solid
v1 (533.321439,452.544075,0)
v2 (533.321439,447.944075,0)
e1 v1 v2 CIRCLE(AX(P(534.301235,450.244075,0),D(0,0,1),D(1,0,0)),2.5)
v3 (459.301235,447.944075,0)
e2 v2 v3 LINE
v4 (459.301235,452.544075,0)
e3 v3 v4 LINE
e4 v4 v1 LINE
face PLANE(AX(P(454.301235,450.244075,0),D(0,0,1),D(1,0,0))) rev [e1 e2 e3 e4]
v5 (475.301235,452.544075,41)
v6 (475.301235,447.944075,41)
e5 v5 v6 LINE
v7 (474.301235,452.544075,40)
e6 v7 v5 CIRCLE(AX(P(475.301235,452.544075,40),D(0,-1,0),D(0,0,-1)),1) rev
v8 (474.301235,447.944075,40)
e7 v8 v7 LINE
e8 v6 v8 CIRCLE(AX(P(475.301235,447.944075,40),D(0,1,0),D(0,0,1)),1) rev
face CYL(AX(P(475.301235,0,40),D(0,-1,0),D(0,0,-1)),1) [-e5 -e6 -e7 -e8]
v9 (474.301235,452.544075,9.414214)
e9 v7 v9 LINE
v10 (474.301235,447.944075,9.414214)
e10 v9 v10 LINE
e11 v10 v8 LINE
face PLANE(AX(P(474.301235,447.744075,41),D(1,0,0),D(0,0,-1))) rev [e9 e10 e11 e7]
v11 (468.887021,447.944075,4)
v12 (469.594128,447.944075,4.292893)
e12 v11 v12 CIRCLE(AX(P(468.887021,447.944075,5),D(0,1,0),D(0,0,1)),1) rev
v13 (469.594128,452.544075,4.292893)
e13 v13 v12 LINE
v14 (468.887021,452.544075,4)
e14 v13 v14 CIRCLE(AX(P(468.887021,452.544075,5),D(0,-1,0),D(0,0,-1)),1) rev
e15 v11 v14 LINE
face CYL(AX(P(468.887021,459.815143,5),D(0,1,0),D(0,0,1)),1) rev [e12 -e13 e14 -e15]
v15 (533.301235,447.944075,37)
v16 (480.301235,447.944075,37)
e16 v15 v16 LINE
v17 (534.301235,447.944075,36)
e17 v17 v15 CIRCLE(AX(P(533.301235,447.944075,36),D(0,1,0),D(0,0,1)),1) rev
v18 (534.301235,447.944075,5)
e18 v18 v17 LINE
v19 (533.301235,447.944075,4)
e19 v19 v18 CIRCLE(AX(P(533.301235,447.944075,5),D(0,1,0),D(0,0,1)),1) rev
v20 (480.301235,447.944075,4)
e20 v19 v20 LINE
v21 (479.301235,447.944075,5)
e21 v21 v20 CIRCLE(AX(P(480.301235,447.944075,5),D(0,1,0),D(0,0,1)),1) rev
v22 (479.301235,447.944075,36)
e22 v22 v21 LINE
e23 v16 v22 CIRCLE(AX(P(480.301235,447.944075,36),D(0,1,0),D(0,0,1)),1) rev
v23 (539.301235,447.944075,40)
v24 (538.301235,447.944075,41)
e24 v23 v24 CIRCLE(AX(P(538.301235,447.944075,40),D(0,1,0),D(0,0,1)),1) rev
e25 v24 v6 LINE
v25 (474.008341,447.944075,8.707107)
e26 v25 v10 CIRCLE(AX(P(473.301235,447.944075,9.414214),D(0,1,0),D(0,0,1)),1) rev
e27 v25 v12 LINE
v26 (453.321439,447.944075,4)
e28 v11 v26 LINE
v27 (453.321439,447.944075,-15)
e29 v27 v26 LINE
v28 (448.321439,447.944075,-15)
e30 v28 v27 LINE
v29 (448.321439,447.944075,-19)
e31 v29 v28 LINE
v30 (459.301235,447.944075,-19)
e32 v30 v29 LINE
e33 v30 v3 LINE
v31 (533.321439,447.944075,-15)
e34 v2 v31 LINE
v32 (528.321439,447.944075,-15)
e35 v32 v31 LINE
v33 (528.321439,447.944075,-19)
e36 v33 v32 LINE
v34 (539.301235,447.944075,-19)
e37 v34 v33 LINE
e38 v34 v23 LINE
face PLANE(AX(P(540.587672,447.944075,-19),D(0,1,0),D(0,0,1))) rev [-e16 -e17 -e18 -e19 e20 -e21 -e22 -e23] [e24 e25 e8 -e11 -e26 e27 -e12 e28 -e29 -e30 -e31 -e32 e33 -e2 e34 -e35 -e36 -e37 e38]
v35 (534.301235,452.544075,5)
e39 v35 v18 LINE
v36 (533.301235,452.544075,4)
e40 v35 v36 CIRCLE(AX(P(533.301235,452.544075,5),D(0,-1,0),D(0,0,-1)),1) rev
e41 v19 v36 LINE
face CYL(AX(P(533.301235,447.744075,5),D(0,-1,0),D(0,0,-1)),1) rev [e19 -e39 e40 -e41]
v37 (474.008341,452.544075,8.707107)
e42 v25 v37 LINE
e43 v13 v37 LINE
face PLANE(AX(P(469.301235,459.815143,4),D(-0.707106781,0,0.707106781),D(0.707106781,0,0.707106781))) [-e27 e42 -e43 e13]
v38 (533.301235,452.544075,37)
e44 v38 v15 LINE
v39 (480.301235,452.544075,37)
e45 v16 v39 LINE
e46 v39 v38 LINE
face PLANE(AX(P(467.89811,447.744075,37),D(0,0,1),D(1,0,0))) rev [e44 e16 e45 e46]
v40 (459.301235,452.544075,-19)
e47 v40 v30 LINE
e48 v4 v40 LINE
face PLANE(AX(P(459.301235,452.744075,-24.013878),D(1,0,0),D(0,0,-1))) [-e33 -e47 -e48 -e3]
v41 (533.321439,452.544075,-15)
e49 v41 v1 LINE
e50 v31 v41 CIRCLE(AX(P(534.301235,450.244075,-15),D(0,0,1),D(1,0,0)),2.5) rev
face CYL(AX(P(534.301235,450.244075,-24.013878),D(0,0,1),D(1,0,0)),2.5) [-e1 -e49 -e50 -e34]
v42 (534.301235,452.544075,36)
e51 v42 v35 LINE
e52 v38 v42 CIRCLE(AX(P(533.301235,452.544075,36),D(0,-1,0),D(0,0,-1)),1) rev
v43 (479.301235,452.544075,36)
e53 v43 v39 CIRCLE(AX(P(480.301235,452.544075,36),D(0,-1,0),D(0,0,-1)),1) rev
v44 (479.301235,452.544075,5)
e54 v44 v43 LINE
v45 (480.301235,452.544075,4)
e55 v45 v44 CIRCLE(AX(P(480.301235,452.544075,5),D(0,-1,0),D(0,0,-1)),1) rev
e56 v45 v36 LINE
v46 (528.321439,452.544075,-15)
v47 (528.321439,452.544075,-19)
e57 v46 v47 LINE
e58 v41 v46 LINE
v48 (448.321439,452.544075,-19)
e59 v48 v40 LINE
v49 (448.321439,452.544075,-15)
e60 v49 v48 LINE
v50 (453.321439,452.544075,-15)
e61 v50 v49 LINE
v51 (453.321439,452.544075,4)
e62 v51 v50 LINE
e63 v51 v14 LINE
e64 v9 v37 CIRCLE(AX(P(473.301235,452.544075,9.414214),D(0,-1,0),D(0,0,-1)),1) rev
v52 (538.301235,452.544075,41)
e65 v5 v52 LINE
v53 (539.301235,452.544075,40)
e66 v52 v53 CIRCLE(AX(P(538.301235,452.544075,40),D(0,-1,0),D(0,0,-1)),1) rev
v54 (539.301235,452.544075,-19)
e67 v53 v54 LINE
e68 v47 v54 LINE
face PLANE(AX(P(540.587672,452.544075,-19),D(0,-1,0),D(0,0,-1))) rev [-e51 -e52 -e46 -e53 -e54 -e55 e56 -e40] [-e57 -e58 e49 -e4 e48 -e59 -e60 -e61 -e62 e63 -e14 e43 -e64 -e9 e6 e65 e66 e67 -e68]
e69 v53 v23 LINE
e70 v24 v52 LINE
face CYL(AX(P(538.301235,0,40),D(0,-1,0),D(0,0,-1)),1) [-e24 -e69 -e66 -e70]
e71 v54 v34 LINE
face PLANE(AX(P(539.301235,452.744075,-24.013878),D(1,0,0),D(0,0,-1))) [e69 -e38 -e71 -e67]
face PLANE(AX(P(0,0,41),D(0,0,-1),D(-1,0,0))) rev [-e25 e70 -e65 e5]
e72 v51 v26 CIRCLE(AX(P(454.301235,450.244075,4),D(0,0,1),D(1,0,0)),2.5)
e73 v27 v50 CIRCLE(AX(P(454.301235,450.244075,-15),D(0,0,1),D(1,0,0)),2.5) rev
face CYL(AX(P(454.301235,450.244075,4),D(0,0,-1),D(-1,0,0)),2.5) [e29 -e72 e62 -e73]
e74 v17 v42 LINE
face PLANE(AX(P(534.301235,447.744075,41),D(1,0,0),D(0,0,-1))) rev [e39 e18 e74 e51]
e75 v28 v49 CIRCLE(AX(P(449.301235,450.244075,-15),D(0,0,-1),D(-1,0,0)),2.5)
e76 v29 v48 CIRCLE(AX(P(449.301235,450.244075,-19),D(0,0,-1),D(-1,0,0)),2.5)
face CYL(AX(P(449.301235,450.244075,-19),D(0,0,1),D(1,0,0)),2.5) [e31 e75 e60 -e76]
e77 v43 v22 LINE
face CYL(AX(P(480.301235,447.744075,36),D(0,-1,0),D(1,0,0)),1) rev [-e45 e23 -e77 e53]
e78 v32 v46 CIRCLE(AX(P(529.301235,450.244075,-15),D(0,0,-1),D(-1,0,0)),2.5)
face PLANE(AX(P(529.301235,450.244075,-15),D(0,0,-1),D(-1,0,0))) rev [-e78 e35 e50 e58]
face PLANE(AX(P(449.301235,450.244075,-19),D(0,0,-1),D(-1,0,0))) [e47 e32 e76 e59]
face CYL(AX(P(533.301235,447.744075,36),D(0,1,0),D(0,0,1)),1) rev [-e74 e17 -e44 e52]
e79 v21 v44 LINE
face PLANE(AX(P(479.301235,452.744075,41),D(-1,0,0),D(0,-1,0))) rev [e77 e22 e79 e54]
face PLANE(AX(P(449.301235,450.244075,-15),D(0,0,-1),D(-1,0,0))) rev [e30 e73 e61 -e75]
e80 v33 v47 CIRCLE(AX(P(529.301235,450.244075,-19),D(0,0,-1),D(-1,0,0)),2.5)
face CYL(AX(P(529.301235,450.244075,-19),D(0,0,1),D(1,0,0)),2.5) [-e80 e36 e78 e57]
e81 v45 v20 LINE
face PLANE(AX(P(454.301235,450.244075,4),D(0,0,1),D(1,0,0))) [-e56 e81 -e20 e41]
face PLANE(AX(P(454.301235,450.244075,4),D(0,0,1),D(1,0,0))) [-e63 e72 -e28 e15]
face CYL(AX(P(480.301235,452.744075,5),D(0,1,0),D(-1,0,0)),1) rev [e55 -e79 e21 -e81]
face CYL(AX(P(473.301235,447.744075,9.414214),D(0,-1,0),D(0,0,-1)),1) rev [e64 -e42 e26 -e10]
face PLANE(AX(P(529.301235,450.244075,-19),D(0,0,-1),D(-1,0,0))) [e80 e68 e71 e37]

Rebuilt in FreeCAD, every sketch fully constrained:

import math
import FreeCAD as App
import Part
import Sketcher


def edges_at(feature, points):
    """Names of the edges that pass closest to the given points."""
    edges = feature.Shape.Edges
    near = lambda p: min(range(len(edges)), key=lambda i: edges[i].distToShape(Part.Vertex(*p))[0])
    return sorted({f"Edge{near(p) + 1}" for p in points})

doc = App.newDocument("Part")
body = doc.addObject("PartDesign::Body", "Body")

sketch1 = body.newObject("Sketcher::SketchObject", "Sketch")
sketch1.AttachmentSupport = (doc.getObject("XY_Plane"), [""])
sketch1.MapMode = "FlatFace"
sketch1.addGeometry([
    Part.LineSegment(App.Vector(539.301235, 447.744075, 0), App.Vector(539.301235, 452.744075, 0)),
    Part.LineSegment(App.Vector(539.301235, 452.744075, 0), App.Vector(534.301235, 452.744075, 0)),
    Part.ArcOfCircle(Part.Circle(App.Vector(534.301235, 450.244075, 0), App.Vector(0, 0, 1), 2.5), math.radians(90), math.radians(270)),
    Part.LineSegment(App.Vector(534.301235, 447.744075, 0), App.Vector(539.301235, 447.744075, 0)),
], False)
sketch1.addConstraint([
    Sketcher.Constraint("Coincident", 0, 2, 1, 1),
    Sketcher.Constraint("Tangent", 1, 2, 2, 1),
    Sketcher.Constraint("Tangent", 2, 2, 3, 1),
    Sketcher.Constraint("Coincident", 3, 2, 0, 1),
    Sketcher.Constraint("Vertical", 0),
    Sketcher.Constraint("Horizontal", 1),
    Sketcher.Constraint("Horizontal", 3),
    Sketcher.Constraint("Equal", 3, 0),
    Sketcher.Constraint("Radius", 2, 2.5),
    Sketcher.Constraint("DistanceX", -1, 1, 2, 3, 534.301235),
    Sketcher.Constraint("DistanceY", -1, 1, 2, 3, 450.244075),
])
pad1 = body.newObject("PartDesign::Pad", "Pad")
pad1.Profile = sketch1
pad1.Length = 15
pad1.Reversed = True
body2 = doc.addObject("PartDesign::Body", "Body001")

sketch2 = body2.newObject("Sketcher::SketchObject", "Sketch001")
sketch2.AttachmentSupport = (doc.getObject("XY_Plane001"), [""])
sketch2.MapMode = "FlatFace"
sketch2.addGeometry([
    Part.LineSegment(App.Vector(459.301235, 447.744075, 0), App.Vector(459.301235, 452.744075, 0)),
    Part.LineSegment(App.Vector(459.301235, 452.744075, 0), App.Vector(454.301235, 452.744075, 0)),
    Part.ArcOfCircle(Part.Circle(App.Vector(454.301235, 450.244075, 0), App.Vector(0, 0, 1), 2.5), math.radians(90), math.radians(270)),
    Part.LineSegment(App.Vector(454.301235, 447.744075, 0), App.Vector(459.301235, 447.744075, 0)),
], False)
sketch2.addConstraint([
    Sketcher.Constraint("Coincident", 0, 2, 1, 1),
    Sketcher.Constraint("Tangent", 1, 2, 2, 1),
    Sketcher.Constraint("Tangent", 2, 2, 3, 1),
    Sketcher.Constraint("Coincident", 3, 2, 0, 1),
    Sketcher.Constraint("Vertical", 0),
    Sketcher.Constraint("Horizontal", 1),
    Sketcher.Constraint("Horizontal", 3),
    Sketcher.Constraint("Equal", 3, 0),
    Sketcher.Constraint("Radius", 2, 2.5),
    Sketcher.Constraint("DistanceX", -1, 1, 2, 3, 454.301235),
    Sketcher.Constraint("DistanceY", -1, 1, 2, 3, 450.244075),
])
pad2 = body2.newObject("PartDesign::Pad", "Pad001")
pad2.Profile = sketch2
pad2.Length = 15
pad2.Reversed = True
body.AllowCompound = True
doc.recompute()

boolean = body.newObject("PartDesign::Boolean", "Boolean")
boolean.Type = "Fuse"
boolean.addObjects([body2])

sketch3 = body.newObject("Sketcher::SketchObject", "Sketch002")
sketch3.AttachmentSupport = (doc.getObject("XY_Plane"), [""])
sketch3.MapMode = "FlatFace"
sketch3.AttachmentOffset = App.Placement(App.Vector(0, 0, -15), App.Rotation())
sketch3.addGeometry([
    Part.LineSegment(App.Vector(529.301235, 452.744075, 0), App.Vector(539.301235, 452.744075, 0)),
    Part.LineSegment(App.Vector(539.301235, 452.744075, 0), App.Vector(539.301235, 447.744075, 0)),
    Part.LineSegment(App.Vector(539.301235, 447.744075, 0), App.Vector(529.301235, 447.744075, 0)),
    Part.ArcOfCircle(Part.Circle(App.Vector(529.301235, 450.244075, 0), App.Vector(0, 0, 1), 2.5), math.radians(90), math.radians(270)),
    Part.LineSegment(App.Vector(449.301235, 452.744075, 0), App.Vector(459.301235, 452.744075, 0)),
    Part.LineSegment(App.Vector(459.301235, 452.744075, 0), App.Vector(459.301235, 447.744075, 0)),
    Part.LineSegment(App.Vector(459.301235, 447.744075, 0), App.Vector(449.301235, 447.744075, 0)),
    Part.ArcOfCircle(Part.Circle(App.Vector(449.301235, 450.244075, 0), App.Vector(0, 0, 1), 2.5), math.radians(90), math.radians(270)),
], False)
sketch3.addConstraint([
    Sketcher.Constraint("Coincident", 0, 2, 1, 1),
    Sketcher.Constraint("Coincident", 1, 2, 2, 1),
    Sketcher.Constraint("Tangent", 2, 2, 3, 2),
    Sketcher.Constraint("Tangent", 3, 1, 0, 1),
    Sketcher.Constraint("Coincident", 4, 2, 5, 1),
    Sketcher.Constraint("Coincident", 5, 2, 6, 1),
    Sketcher.Constraint("Tangent", 6, 2, 7, 2),
    Sketcher.Constraint("Tangent", 7, 1, 4, 1),
    Sketcher.Constraint("Horizontal", 0),
    Sketcher.Constraint("Vertical", 1),
    Sketcher.Constraint("Horizontal", 2),
    Sketcher.Constraint("Horizontal", 4),
    Sketcher.Constraint("Vertical", 5),
    Sketcher.Constraint("Horizontal", 6),
    Sketcher.Constraint("Equal", 3, 7),
    Sketcher.Constraint("Horizontal", 3, 3, 7, 3),
    Sketcher.Constraint("Equal", 2, 4),
    Sketcher.Constraint("Radius", 3, 2.5),
    Sketcher.Constraint("DistanceX", 0, 1, 0, 2, 10.0),
    Sketcher.Constraint("DistanceX", 7, 3, 3, 3, 80.0),
    Sketcher.Constraint("DistanceX", -1, 1, 3, 3, 529.301235),
    Sketcher.Constraint("DistanceY", -1, 1, 3, 3, 450.244075),
])
pad3 = body.newObject("PartDesign::Pad", "Pad002")
pad3.Profile = sketch3
pad3.Length = 4
pad3.Reversed = True

sketch4 = body.newObject("Sketcher::SketchObject", "Sketch003")
sketch4.AttachmentSupport = (doc.getObject("XY_Plane"), [""])
sketch4.MapMode = "FlatFace"
sketch4.addGeometry([
    Part.LineSegment(App.Vector(454.301235, 447.744075, 0), App.Vector(539.301235, 447.744075, 0)),
    Part.LineSegment(App.Vector(539.301235, 447.744075, 0), App.Vector(539.301235, 452.744075, 0)),
    Part.LineSegment(App.Vector(539.301235, 452.744075, 0), App.Vector(454.301235, 452.744075, 0)),
    Part.ArcOfCircle(Part.Circle(App.Vector(454.301235, 450.244075, 0), App.Vector(0, 0, 1), 2.5), math.radians(90), math.radians(270)),
], False)
sketch4.addConstraint([
    Sketcher.Constraint("Coincident", 0, 2, 1, 1),
    Sketcher.Constraint("Coincident", 1, 2, 2, 1),
    Sketcher.Constraint("Tangent", 2, 2, 3, 1),
    Sketcher.Constraint("Tangent", 3, 2, 0, 1),
    Sketcher.Constraint("Horizontal", 0),
    Sketcher.Constraint("Vertical", 1),
    Sketcher.Constraint("Horizontal", 2),
    Sketcher.Constraint("Radius", 3, 2.5),
    Sketcher.Constraint("DistanceX", 0, 1, 0, 2, 85.0),
    Sketcher.Constraint("DistanceX", -1, 1, 3, 3, 454.301235),
    Sketcher.Constraint("DistanceY", -1, 1, 3, 3, 450.244075),
])
pad4 = body.newObject("PartDesign::Pad", "Pad003")
pad4.Profile = sketch4
pad4.Length = 4

sketch5 = body.newObject("Sketcher::SketchObject", "Sketch004")
sketch5.AttachmentSupport = (doc.getObject("XY_Plane"), [""])
sketch5.MapMode = "FlatFace"
sketch5.AttachmentOffset = App.Placement(App.Vector(0, 0, 4), App.Rotation())
sketch5.addGeometry([
    Part.LineSegment(App.Vector(534.301235, 452.744075, 0), App.Vector(534.301235, 447.744075, 0)),
    Part.LineSegment(App.Vector(534.301235, 447.744075, 0), App.Vector(539.301235, 447.744075, 0)),
    Part.LineSegment(App.Vector(539.301235, 447.744075, 0), App.Vector(539.301235, 452.744075, 0)),
    Part.LineSegment(App.Vector(539.301235, 452.744075, 0), App.Vector(534.301235, 452.744075, 0)),
    Part.LineSegment(App.Vector(474.301235, 452.744075, 0), App.Vector(474.301235, 447.744075, 0)),
    Part.LineSegment(App.Vector(474.301235, 447.744075, 0), App.Vector(479.301235, 447.744075, 0)),
    Part.LineSegment(App.Vector(479.301235, 447.744075, 0), App.Vector(479.301235, 452.744075, 0)),
    Part.LineSegment(App.Vector(479.301235, 452.744075, 0), App.Vector(474.301235, 452.744075, 0)),
], False)
sketch5.addConstraint([
    Sketcher.Constraint("Coincident", 0, 2, 1, 1),
    Sketcher.Constraint("Coincident", 1, 2, 2, 1),
    Sketcher.Constraint("Coincident", 2, 2, 3, 1),
    Sketcher.Constraint("Coincident", 3, 2, 0, 1),
    Sketcher.Constraint("Coincident", 4, 2, 5, 1),
    Sketcher.Constraint("Coincident", 5, 2, 6, 1),
    Sketcher.Constraint("Coincident", 6, 2, 7, 1),
    Sketcher.Constraint("Coincident", 7, 2, 4, 1),
    Sketcher.Constraint("Vertical", 0),
    Sketcher.Constraint("Horizontal", 1),
    Sketcher.Constraint("Vertical", 2),
    Sketcher.Constraint("Horizontal", 3),
    Sketcher.Constraint("Vertical", 4),
    Sketcher.Constraint("Horizontal", 5),
    Sketcher.Constraint("Vertical", 6),
    Sketcher.Constraint("Horizontal", 7),
    Sketcher.Constraint("Horizontal", 1, 2, 4, 2),
    Sketcher.Constraint("Horizontal", 3, 2, 6, 2),
    Sketcher.Constraint("Equal", 3, 5),
    Sketcher.Constraint("Equal", 7, 0),
    Sketcher.Constraint("DistanceX", 1, 1, 1, 2, 5.0),
    Sketcher.Constraint("DistanceX", 4, 2, 0, 2, 60.0),
    Sketcher.Constraint("DistanceX", -1, 1, 0, 2, 534.301235),
    Sketcher.Constraint("DistanceY", -1, 1, 0, 2, 447.744075),
])
pad5 = body.newObject("PartDesign::Pad", "Pad004")
pad5.Profile = sketch5
pad5.Length = 37

sketch6 = body.newObject("Sketcher::SketchObject", "Sketch005")
sketch6.AttachmentSupport = (doc.getObject("YZ_Plane"), [""])
sketch6.MapMode = "FlatFace"
sketch6.AttachmentOffset = App.Placement(App.Vector(0, 0, 534.301235), App.Rotation())
sketch6.addGeometry([
    Part.LineSegment(App.Vector(452.744075, 37, 0), App.Vector(447.744075, 37, 0)),
    Part.LineSegment(App.Vector(447.744075, 37, 0), App.Vector(447.744075, 41, 0)),
    Part.LineSegment(App.Vector(447.744075, 41, 0), App.Vector(452.744075, 41, 0)),
    Part.LineSegment(App.Vector(452.744075, 41, 0), App.Vector(452.744075, 37, 0)),
], False)
sketch6.addConstraint([
    Sketcher.Constraint("Coincident", 0, 2, 1, 1),
    Sketcher.Constraint("Coincident", 1, 2, 2, 1),
    Sketcher.Constraint("Coincident", 2, 2, 3, 1),
    Sketcher.Constraint("Coincident", 3, 2, 0, 1),
    Sketcher.Constraint("Horizontal", 0),
    Sketcher.Constraint("Vertical", 1),
    Sketcher.Constraint("Horizontal", 2),
    Sketcher.Constraint("Vertical", 3),
    Sketcher.Constraint("DistanceX", 0, 2, 0, 1, 5.0),
    Sketcher.Constraint("DistanceY", 1, 1, 1, 2, 4.0),
    Sketcher.Constraint("DistanceY", -1, 1, 0, 2, 37.0),
    Sketcher.Constraint("DistanceX", -1, 1, 0, 2, 447.744075),
])
pad6 = body.newObject("PartDesign::Pad", "Pad005")
pad6.Profile = sketch6
pad6.Length = 60
pad6.Reversed = True

sketch7 = body.newObject("Sketcher::SketchObject", "Sketch006")
sketch7.AttachmentSupport = (doc.getObject("XZ_Plane"), [""])
sketch7.MapMode = "FlatFace"
sketch7.AttachmentOffset = App.Placement(App.Vector(0, 0, -447.744075), App.Rotation())
sketch7.addGeometry([
    Part.LineSegment(App.Vector(469.301235, 4, 0), App.Vector(474.301235, 4, 0)),
    Part.LineSegment(App.Vector(474.301235, 4, 0), App.Vector(474.301235, 9, 0)),
    Part.LineSegment(App.Vector(474.301235, 9, 0), App.Vector(469.301235, 4, 0)),
], False)
sketch7.addConstraint([
    Sketcher.Constraint("Coincident", 0, 2, 1, 1),
    Sketcher.Constraint("Coincident", 1, 2, 2, 1),
    Sketcher.Constraint("Coincident", 2, 2, 0, 1),
    Sketcher.Constraint("Horizontal", 0),
    Sketcher.Constraint("Vertical", 1),
    Sketcher.Constraint("Equal", 0, 1),
    Sketcher.Constraint("DistanceX", 0, 1, 0, 2, 5.0),
    Sketcher.Constraint("DistanceY", -1, 1, 0, 2, 4.0),
    Sketcher.Constraint("DistanceX", -1, 1, 0, 2, 474.301235),
])
pad7 = body.newObject("PartDesign::Pad", "Pad006")
pad7.Profile = sketch7
pad7.Length = 5
pad7.Reversed = True
doc.recompute()

fillet = body.newObject("PartDesign::Fillet", "Fillet")
fillet.Base = (pad7, edges_at(pad7, [
    (534.301, 450.244, 4),
    (479.301, 450.244, 4),
    (479.301, 450.244, 37),
    (534.301, 450.244, 37),
]))
fillet.Radius = 1
doc.recompute()

fillet2 = body.newObject("PartDesign::Fillet", "Fillet001")
fillet2.Base = (fillet, edges_at(fillet, [
    (469.301, 450.244, 4),
    (474.301, 450.244, 9),
    (539.301, 450.244, 41),
    (474.301, 450.244, 41),
]))
fillet2.Radius = 1

sketch8 = body.newObject("Sketcher::SketchObject", "Sketch007")
sketch8.AttachmentSupport = (doc.getObject("XY_Plane"), [""])
sketch8.MapMode = "FlatFace"
sketch8.AttachmentOffset = App.Placement(App.Vector(0, 0, 41), App.Rotation())
sketch8.addGeometry([
    Part.LineSegment(App.Vector(446.179674, 452.744075, 0), App.Vector(446.179674, 452.544075, 0)),
    Part.LineSegment(App.Vector(446.179674, 452.544075, 0), App.Vector(540.587672, 452.544075, 0)),
    Part.LineSegment(App.Vector(540.587672, 452.544075, 0), App.Vector(540.587672, 452.744075, 0)),
    Part.LineSegment(App.Vector(540.587672, 452.744075, 0), App.Vector(446.179674, 452.744075, 0)),
    Part.LineSegment(App.Vector(446.179674, 447.944075, 0), App.Vector(446.179674, 447.744075, 0)),
    Part.LineSegment(App.Vector(446.179674, 447.744075, 0), App.Vector(540.587672, 447.744075, 0)),
    Part.LineSegment(App.Vector(540.587672, 447.744075, 0), App.Vector(540.587672, 447.944075, 0)),
    Part.LineSegment(App.Vector(540.587672, 447.944075, 0), App.Vector(446.179674, 447.944075, 0)),
], False)
sketch8.addConstraint([
    Sketcher.Constraint("Coincident", 0, 2, 1, 1),
    Sketcher.Constraint("Coincident", 1, 2, 2, 1),
    Sketcher.Constraint("Coincident", 2, 2, 3, 1),
    Sketcher.Constraint("Coincident", 3, 2, 0, 1),
    Sketcher.Constraint("Coincident", 4, 2, 5, 1),
    Sketcher.Constraint("Coincident", 5, 2, 6, 1),
    Sketcher.Constraint("Coincident", 6, 2, 7, 1),
    Sketcher.Constraint("Coincident", 7, 2, 4, 1),
    Sketcher.Constraint("Vertical", 0),
    Sketcher.Constraint("Horizontal", 1),
    Sketcher.Constraint("Vertical", 2),
    Sketcher.Constraint("Horizontal", 3),
    Sketcher.Constraint("Vertical", 4),
    Sketcher.Constraint("Horizontal", 5),
    Sketcher.Constraint("Vertical", 6),
    Sketcher.Constraint("Horizontal", 7),
    Sketcher.Constraint("Vertical", 3, 2, 4, 2),
    Sketcher.Constraint("Vertical", 2, 2, 5, 2),
    Sketcher.Constraint("Equal", 2, 4),
    Sketcher.Constraint("DistanceY", 0, 2, 0, 1, 0.2),
    Sketcher.Constraint("DistanceY", 4, 2, 3, 2, 5.0),
    Sketcher.Constraint("DistanceX", 1, 1, 1, 2, 94.407997),
    Sketcher.Constraint("DistanceX", -1, 1, 1, 2, 540.587672),
    Sketcher.Constraint("DistanceY", -1, 1, 0, 2, 452.544075),
])
pocket1 = body.newObject("PartDesign::Pocket", "Pocket")
pocket1.Profile = sketch8
pocket1.Type = "ThroughAll"

doc.recompute()
